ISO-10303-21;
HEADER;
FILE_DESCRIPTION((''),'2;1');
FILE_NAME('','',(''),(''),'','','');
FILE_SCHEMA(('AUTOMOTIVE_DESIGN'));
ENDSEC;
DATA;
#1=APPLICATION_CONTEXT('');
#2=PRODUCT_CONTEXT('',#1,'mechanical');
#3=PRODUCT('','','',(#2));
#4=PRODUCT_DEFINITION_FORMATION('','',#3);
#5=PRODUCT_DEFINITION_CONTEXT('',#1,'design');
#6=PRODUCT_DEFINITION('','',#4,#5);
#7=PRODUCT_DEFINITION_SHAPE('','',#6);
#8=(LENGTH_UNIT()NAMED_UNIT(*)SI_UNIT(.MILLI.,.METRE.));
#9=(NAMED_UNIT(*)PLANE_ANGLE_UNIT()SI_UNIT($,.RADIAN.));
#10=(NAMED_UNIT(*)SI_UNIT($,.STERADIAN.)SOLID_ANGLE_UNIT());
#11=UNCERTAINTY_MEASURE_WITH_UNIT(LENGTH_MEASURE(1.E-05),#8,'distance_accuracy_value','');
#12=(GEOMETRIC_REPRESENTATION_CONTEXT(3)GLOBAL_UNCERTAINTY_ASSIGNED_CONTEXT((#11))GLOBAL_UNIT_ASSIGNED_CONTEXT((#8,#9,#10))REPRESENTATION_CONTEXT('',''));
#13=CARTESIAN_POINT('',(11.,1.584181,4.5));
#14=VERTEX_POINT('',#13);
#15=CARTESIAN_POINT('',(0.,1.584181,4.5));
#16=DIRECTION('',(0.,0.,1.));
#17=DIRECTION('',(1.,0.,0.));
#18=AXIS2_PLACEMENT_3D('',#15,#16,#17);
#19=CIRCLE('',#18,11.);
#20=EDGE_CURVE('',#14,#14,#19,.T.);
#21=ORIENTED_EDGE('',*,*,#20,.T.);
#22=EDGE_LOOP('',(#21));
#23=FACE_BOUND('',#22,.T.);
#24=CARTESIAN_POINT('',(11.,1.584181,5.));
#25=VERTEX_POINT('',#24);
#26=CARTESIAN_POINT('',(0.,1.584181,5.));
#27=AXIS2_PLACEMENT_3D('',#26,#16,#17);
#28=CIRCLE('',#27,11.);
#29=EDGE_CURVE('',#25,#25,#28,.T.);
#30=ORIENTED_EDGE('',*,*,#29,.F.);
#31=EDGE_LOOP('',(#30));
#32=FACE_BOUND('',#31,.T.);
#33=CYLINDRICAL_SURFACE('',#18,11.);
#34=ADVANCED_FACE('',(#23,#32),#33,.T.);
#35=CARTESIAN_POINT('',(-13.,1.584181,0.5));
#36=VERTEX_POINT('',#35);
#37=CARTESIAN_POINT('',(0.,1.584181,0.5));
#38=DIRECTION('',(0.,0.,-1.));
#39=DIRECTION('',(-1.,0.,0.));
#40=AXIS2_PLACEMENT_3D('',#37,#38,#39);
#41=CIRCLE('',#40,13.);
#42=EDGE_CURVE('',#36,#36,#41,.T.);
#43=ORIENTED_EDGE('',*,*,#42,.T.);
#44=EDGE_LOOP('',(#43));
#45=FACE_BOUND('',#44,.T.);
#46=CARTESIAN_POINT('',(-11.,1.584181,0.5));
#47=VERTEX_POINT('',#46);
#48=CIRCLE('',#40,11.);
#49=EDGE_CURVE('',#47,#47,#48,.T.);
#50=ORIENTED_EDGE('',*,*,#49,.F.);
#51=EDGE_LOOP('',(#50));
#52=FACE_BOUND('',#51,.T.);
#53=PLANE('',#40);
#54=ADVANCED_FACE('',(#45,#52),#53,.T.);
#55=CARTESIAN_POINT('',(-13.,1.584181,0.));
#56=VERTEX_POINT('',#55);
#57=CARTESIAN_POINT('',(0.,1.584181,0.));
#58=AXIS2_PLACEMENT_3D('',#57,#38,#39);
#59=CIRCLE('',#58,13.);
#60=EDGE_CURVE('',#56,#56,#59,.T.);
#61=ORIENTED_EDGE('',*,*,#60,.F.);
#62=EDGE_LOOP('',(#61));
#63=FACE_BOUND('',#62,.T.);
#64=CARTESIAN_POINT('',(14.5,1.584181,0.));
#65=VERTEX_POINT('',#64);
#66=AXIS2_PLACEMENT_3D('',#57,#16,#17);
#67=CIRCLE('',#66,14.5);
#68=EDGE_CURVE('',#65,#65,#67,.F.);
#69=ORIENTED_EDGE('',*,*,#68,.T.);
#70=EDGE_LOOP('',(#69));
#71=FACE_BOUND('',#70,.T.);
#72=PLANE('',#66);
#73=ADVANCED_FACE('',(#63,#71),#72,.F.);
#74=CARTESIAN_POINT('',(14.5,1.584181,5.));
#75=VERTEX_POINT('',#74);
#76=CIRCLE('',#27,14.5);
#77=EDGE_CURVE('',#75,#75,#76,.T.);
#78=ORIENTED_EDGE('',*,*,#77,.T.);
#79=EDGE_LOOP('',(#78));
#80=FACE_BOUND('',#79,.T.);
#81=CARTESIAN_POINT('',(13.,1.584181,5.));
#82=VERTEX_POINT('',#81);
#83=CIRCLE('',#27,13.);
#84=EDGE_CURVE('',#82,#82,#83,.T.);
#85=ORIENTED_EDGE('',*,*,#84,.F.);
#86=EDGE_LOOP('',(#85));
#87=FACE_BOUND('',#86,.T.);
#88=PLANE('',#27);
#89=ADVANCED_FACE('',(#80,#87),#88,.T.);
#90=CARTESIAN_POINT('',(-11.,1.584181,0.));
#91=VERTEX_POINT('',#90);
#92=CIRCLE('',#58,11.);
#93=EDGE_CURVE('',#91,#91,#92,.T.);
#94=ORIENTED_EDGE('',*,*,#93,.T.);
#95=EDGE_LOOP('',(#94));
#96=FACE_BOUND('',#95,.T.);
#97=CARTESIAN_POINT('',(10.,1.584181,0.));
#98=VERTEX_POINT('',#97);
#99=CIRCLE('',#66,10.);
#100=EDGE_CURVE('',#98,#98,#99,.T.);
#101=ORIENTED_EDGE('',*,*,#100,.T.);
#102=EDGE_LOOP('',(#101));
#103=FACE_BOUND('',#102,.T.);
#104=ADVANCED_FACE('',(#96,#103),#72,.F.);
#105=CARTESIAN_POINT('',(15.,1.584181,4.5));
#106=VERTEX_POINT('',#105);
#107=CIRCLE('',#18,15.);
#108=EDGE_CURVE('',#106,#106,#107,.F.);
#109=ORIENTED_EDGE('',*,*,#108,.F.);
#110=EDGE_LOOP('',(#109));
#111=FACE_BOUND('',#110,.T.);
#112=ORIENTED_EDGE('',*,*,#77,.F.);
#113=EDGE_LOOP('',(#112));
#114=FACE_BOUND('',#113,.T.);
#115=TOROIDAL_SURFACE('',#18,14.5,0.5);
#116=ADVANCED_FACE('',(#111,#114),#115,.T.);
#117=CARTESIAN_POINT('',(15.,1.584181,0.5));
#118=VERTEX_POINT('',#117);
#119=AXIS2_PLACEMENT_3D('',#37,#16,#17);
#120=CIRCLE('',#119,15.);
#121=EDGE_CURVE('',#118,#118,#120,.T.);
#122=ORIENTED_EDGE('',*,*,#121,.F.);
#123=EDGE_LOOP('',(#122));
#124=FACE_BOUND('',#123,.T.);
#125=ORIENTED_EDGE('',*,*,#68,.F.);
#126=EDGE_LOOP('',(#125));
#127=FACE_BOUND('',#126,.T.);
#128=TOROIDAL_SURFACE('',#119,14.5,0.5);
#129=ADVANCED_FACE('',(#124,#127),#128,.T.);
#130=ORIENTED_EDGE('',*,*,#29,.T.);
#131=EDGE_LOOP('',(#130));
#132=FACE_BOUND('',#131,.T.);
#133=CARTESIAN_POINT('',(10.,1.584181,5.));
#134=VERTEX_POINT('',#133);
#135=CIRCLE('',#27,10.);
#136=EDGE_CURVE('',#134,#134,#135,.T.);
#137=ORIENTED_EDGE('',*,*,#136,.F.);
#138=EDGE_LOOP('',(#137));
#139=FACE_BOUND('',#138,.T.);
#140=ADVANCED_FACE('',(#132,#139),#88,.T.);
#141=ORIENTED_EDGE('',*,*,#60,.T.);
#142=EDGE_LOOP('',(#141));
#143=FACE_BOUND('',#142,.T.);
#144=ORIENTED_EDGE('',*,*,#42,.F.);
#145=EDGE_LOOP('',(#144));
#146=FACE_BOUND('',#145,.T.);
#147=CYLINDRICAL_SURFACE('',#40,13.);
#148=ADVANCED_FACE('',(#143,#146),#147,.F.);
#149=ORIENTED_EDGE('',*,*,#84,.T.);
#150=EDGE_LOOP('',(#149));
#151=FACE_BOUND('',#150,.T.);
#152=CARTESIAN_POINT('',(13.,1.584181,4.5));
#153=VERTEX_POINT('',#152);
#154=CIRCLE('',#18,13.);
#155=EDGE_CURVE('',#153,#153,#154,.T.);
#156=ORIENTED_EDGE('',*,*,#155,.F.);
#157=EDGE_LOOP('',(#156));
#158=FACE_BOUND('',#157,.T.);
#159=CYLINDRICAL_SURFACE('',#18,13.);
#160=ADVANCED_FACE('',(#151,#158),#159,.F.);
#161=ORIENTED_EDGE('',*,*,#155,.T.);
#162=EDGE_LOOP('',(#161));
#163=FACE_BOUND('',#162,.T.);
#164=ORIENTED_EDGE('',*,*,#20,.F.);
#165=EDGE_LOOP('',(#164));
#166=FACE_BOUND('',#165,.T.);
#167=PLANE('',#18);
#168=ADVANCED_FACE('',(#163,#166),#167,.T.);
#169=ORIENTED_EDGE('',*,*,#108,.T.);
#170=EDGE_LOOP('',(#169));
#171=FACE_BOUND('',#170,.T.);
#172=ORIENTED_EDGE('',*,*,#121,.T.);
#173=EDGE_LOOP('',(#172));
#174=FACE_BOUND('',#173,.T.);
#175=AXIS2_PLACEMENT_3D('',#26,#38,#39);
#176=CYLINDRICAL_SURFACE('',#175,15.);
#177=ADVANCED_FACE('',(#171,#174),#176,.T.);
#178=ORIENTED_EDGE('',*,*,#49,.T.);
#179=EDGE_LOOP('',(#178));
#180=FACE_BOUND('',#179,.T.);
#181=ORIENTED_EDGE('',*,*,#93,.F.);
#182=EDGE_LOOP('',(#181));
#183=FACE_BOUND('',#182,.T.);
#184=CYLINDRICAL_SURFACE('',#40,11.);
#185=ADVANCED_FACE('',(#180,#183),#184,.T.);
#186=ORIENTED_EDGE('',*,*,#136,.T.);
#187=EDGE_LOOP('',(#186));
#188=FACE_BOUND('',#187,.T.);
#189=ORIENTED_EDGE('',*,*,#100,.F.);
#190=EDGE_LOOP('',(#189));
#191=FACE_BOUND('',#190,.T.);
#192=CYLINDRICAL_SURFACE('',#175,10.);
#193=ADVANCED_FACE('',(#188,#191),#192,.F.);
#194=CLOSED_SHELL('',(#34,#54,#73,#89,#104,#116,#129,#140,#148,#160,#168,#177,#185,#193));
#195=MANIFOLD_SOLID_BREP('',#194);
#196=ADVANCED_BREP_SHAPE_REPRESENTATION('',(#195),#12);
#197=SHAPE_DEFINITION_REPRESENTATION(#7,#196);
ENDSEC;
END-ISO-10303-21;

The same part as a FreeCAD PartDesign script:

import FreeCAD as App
import Part
import Sketcher

V = App.Vector


def edges_at(feature, points):
    """Names of the edges that pass closest to the given points."""
    edges = feature.Shape.Edges
    near = lambda p: min(range(len(edges)), key=lambda i: edges[i].distToShape(Part.Vertex(*p))[0])
    return sorted({f"Edge{near(p) + 1}" for p in points})

doc = App.newDocument("Part")
params = doc.addObject("Spreadsheet::Sheet", "Params")
for row, (alias, value) in enumerate([
    ("sketch1_diameter", "30 mm"),
    ("sketch1_diameter2", "20 mm"),
    ("pad1_length", "5 mm"),
    ("fillet_radius", "0.5 mm"),
    ("sketch2_diameter", "26 mm"),
    ("sketch2_diameter2", "22 mm"),
    ("pocket1_length", "0.5 mm"),
    ("sketch3_diameter", "26 mm"),
    ("sketch3_diameter2", "22 mm"),
    ("pocket2_length", "0.5 mm"),
], start=1):
    params.set(f"A{row}", alias)
    params.set(f"B{row}", "=" + value)
    params.setAlias(f"B{row}", alias)

body = doc.addObject("PartDesign::Body", "Body")

# Sketch on XY plane
sketch1 = body.newObject("Sketcher::SketchObject", "Sketch")
sketch1.AttachmentSupport = (doc.getObject("XY_Plane"), [""])
sketch1.MapMode = "FlatFace"
sketch1.addGeometry([
    Part.Circle(V(0, 2, 0), V(0, 0, 1), 15),
    Part.Circle(V(0, 2, 0), V(0, 0, 1), 10),
], False)
sketch1.addConstraint([
    Sketcher.Constraint("Coincident", 1, 3, 0, 3),
    Sketcher.Constraint("PointOnObject", 0, 3, -2),
    Sketcher.Constraint("Diameter", 0, 30.0),
    Sketcher.Constraint("Diameter", 1, 20.0),
    Sketcher.Constraint("DistanceY", -1, 1, 0, 3, 1.584181),
])
sketch1.setExpression("Constraints[2]", "Params.sketch1_diameter")
sketch1.setExpression("Constraints[3]", "Params.sketch1_diameter2")
pad1 = body.newObject("PartDesign::Pad", "Pad")
pad1.Profile = sketch1
pad1.setExpression("Length", "Params.pad1_length")
doc.recompute()

fillet = body.newObject("PartDesign::Fillet", "Fillet")
fillet.Base = (pad1, edges_at(pad1, [(-15, 1.584, 0), (-15, 1.584, 5)]))
fillet.setExpression("Radius", "Params.fillet_radius")

# Sketch on XY plane
sketch2 = body.newObject("Sketcher::SketchObject", "Sketch001")
sketch2.AttachmentSupport = (doc.getObject("XY_Plane"), [""])
sketch2.MapMode = "FlatFace"
sketch2.AttachmentOffset = App.Placement(V(0, 0, 5), App.Rotation())
sketch2.addGeometry([
    Part.Circle(V(0, 2, 0), V(0, 0, 1), 13),
    Part.Circle(V(0, 2, 0), V(0, 0, 1), 11),
], False)
sketch2.addConstraint([
    Sketcher.Constraint("Coincident", 1, 3, 0, 3),
    Sketcher.Constraint("PointOnObject", 0, 3, -2),
    Sketcher.Constraint("Diameter", 0, 26.0),
    Sketcher.Constraint("Diameter", 1, 22.0),
    Sketcher.Constraint("DistanceY", -1, 1, 0, 3, 1.584181),
])
sketch2.setExpression("Constraints[2]", "Params.sketch2_diameter")
sketch2.setExpression("Constraints[3]", "Params.sketch2_diameter2")
pocket1 = body.newObject("PartDesign::Pocket", "Pocket")
pocket1.Profile = sketch2
pocket1.setExpression("Length", "Params.pocket1_length")

# Sketch on XY plane
sketch3 = body.newObject("Sketcher::SketchObject", "Sketch002")
sketch3.AttachmentSupport = (doc.getObject("XY_Plane"), [""])
sketch3.MapMode = "FlatFace"
sketch3.addGeometry([
    Part.Circle(V(0, 2, 0), V(0, 0, 1), 13),
    Part.Circle(V(0, 2, 0), V(0, 0, 1), 11),
], False)
sketch3.addConstraint([
    Sketcher.Constraint("Coincident", 1, 3, 0, 3),
    Sketcher.Constraint("PointOnObject", 0, 3, -2),
    Sketcher.Constraint("Diameter", 0, 26.0),
    Sketcher.Constraint("Diameter", 1, 22.0),
    Sketcher.Constraint("DistanceY", -1, 1, 0, 3, 1.584181),
])
sketch3.setExpression("Constraints[2]", "Params.sketch3_diameter")
sketch3.setExpression("Constraints[3]", "Params.sketch3_diameter2")
pocket2 = body.newObject("PartDesign::Pocket", "Pocket001")
pocket2.Profile = sketch3
pocket2.setExpression("Length", "Params.pocket2_length")
pocket2.Reversed = True

doc.recompute()
